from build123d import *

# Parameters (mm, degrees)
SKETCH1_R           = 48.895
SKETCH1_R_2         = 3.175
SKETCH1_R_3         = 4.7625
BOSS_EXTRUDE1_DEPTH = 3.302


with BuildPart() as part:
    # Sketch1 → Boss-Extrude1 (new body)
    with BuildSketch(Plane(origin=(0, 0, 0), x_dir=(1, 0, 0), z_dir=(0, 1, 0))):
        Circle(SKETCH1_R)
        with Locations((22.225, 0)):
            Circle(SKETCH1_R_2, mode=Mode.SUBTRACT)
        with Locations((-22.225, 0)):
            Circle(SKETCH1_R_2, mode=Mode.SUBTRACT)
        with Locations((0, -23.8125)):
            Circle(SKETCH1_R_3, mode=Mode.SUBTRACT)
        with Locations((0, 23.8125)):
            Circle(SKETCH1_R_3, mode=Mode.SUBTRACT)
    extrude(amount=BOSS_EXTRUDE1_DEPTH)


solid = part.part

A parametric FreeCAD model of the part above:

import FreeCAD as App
import Part
import Sketcher
from FreeCAD import Vector
Q = App.Units.Quantity

doc = App.newDocument("Part")
body = doc.addObject("PartDesign::Body", "Body")

sketch1 = doc.addObject("Sketcher::SketchObject", "Sketch")
body.addObject(sketch1)
sketch1.AttachmentSupport = (doc.XZ_Plane, [""])
sketch1.MapMode = "FlatFace"
sketch1.addGeometry([
    Part.Circle(Vector(0, 0, 0), Vector(0, 0, 1), 48.9),
    Part.Circle(Vector(0, 23.8, 0), Vector(0, 0, 1), 4.8),
    Part.Circle(Vector(-22.2, 0, 0), Vector(0, 0, 1), 3.2),
    Part.Circle(Vector(0, -23.8, 0), Vector(0, 0, 1), 4.8),
    Part.Circle(Vector(22.2, 0, 0), Vector(0, 0, 1), 3.2),
], False)
sketch1.addConstraint([
    Sketcher.Constraint("Coincident", 0, 3, -1, 1),
    Sketcher.Constraint("Equal", 1, 3),
    Sketcher.Constraint("Equal", 2, 4),
    Sketcher.Constraint("Symmetric", 1, 3, 3, 3, -1, 1),
    Sketcher.Constraint("Symmetric", 2, 3, 4, 3, -1, 1),
    Sketcher.Constraint("PointOnObject", 1, 3, -2),
    Sketcher.Constraint("PointOnObject", 2, 3, -1),
    Sketcher.Constraint("Diameter", 0, Q("3.85 in")),
    Sketcher.Constraint("Diameter", 2, Q("0.25 in")),
    Sketcher.Constraint("Diameter", 1, Q("0.375 in")),
    Sketcher.Constraint("DistanceX", 2, 3, 4, 3, Q("1.75 in")),
    Sketcher.Constraint("DistanceY", -1, 1, 1, 3, Q("0.9375 in")),
])
pad1 = doc.addObject("PartDesign::Pad", "Pad")
body.addObject(pad1)
pad1.Profile = sketch1
pad1.Length = Q("0.13 in")
pad1.Reversed = True

doc.recompute()
